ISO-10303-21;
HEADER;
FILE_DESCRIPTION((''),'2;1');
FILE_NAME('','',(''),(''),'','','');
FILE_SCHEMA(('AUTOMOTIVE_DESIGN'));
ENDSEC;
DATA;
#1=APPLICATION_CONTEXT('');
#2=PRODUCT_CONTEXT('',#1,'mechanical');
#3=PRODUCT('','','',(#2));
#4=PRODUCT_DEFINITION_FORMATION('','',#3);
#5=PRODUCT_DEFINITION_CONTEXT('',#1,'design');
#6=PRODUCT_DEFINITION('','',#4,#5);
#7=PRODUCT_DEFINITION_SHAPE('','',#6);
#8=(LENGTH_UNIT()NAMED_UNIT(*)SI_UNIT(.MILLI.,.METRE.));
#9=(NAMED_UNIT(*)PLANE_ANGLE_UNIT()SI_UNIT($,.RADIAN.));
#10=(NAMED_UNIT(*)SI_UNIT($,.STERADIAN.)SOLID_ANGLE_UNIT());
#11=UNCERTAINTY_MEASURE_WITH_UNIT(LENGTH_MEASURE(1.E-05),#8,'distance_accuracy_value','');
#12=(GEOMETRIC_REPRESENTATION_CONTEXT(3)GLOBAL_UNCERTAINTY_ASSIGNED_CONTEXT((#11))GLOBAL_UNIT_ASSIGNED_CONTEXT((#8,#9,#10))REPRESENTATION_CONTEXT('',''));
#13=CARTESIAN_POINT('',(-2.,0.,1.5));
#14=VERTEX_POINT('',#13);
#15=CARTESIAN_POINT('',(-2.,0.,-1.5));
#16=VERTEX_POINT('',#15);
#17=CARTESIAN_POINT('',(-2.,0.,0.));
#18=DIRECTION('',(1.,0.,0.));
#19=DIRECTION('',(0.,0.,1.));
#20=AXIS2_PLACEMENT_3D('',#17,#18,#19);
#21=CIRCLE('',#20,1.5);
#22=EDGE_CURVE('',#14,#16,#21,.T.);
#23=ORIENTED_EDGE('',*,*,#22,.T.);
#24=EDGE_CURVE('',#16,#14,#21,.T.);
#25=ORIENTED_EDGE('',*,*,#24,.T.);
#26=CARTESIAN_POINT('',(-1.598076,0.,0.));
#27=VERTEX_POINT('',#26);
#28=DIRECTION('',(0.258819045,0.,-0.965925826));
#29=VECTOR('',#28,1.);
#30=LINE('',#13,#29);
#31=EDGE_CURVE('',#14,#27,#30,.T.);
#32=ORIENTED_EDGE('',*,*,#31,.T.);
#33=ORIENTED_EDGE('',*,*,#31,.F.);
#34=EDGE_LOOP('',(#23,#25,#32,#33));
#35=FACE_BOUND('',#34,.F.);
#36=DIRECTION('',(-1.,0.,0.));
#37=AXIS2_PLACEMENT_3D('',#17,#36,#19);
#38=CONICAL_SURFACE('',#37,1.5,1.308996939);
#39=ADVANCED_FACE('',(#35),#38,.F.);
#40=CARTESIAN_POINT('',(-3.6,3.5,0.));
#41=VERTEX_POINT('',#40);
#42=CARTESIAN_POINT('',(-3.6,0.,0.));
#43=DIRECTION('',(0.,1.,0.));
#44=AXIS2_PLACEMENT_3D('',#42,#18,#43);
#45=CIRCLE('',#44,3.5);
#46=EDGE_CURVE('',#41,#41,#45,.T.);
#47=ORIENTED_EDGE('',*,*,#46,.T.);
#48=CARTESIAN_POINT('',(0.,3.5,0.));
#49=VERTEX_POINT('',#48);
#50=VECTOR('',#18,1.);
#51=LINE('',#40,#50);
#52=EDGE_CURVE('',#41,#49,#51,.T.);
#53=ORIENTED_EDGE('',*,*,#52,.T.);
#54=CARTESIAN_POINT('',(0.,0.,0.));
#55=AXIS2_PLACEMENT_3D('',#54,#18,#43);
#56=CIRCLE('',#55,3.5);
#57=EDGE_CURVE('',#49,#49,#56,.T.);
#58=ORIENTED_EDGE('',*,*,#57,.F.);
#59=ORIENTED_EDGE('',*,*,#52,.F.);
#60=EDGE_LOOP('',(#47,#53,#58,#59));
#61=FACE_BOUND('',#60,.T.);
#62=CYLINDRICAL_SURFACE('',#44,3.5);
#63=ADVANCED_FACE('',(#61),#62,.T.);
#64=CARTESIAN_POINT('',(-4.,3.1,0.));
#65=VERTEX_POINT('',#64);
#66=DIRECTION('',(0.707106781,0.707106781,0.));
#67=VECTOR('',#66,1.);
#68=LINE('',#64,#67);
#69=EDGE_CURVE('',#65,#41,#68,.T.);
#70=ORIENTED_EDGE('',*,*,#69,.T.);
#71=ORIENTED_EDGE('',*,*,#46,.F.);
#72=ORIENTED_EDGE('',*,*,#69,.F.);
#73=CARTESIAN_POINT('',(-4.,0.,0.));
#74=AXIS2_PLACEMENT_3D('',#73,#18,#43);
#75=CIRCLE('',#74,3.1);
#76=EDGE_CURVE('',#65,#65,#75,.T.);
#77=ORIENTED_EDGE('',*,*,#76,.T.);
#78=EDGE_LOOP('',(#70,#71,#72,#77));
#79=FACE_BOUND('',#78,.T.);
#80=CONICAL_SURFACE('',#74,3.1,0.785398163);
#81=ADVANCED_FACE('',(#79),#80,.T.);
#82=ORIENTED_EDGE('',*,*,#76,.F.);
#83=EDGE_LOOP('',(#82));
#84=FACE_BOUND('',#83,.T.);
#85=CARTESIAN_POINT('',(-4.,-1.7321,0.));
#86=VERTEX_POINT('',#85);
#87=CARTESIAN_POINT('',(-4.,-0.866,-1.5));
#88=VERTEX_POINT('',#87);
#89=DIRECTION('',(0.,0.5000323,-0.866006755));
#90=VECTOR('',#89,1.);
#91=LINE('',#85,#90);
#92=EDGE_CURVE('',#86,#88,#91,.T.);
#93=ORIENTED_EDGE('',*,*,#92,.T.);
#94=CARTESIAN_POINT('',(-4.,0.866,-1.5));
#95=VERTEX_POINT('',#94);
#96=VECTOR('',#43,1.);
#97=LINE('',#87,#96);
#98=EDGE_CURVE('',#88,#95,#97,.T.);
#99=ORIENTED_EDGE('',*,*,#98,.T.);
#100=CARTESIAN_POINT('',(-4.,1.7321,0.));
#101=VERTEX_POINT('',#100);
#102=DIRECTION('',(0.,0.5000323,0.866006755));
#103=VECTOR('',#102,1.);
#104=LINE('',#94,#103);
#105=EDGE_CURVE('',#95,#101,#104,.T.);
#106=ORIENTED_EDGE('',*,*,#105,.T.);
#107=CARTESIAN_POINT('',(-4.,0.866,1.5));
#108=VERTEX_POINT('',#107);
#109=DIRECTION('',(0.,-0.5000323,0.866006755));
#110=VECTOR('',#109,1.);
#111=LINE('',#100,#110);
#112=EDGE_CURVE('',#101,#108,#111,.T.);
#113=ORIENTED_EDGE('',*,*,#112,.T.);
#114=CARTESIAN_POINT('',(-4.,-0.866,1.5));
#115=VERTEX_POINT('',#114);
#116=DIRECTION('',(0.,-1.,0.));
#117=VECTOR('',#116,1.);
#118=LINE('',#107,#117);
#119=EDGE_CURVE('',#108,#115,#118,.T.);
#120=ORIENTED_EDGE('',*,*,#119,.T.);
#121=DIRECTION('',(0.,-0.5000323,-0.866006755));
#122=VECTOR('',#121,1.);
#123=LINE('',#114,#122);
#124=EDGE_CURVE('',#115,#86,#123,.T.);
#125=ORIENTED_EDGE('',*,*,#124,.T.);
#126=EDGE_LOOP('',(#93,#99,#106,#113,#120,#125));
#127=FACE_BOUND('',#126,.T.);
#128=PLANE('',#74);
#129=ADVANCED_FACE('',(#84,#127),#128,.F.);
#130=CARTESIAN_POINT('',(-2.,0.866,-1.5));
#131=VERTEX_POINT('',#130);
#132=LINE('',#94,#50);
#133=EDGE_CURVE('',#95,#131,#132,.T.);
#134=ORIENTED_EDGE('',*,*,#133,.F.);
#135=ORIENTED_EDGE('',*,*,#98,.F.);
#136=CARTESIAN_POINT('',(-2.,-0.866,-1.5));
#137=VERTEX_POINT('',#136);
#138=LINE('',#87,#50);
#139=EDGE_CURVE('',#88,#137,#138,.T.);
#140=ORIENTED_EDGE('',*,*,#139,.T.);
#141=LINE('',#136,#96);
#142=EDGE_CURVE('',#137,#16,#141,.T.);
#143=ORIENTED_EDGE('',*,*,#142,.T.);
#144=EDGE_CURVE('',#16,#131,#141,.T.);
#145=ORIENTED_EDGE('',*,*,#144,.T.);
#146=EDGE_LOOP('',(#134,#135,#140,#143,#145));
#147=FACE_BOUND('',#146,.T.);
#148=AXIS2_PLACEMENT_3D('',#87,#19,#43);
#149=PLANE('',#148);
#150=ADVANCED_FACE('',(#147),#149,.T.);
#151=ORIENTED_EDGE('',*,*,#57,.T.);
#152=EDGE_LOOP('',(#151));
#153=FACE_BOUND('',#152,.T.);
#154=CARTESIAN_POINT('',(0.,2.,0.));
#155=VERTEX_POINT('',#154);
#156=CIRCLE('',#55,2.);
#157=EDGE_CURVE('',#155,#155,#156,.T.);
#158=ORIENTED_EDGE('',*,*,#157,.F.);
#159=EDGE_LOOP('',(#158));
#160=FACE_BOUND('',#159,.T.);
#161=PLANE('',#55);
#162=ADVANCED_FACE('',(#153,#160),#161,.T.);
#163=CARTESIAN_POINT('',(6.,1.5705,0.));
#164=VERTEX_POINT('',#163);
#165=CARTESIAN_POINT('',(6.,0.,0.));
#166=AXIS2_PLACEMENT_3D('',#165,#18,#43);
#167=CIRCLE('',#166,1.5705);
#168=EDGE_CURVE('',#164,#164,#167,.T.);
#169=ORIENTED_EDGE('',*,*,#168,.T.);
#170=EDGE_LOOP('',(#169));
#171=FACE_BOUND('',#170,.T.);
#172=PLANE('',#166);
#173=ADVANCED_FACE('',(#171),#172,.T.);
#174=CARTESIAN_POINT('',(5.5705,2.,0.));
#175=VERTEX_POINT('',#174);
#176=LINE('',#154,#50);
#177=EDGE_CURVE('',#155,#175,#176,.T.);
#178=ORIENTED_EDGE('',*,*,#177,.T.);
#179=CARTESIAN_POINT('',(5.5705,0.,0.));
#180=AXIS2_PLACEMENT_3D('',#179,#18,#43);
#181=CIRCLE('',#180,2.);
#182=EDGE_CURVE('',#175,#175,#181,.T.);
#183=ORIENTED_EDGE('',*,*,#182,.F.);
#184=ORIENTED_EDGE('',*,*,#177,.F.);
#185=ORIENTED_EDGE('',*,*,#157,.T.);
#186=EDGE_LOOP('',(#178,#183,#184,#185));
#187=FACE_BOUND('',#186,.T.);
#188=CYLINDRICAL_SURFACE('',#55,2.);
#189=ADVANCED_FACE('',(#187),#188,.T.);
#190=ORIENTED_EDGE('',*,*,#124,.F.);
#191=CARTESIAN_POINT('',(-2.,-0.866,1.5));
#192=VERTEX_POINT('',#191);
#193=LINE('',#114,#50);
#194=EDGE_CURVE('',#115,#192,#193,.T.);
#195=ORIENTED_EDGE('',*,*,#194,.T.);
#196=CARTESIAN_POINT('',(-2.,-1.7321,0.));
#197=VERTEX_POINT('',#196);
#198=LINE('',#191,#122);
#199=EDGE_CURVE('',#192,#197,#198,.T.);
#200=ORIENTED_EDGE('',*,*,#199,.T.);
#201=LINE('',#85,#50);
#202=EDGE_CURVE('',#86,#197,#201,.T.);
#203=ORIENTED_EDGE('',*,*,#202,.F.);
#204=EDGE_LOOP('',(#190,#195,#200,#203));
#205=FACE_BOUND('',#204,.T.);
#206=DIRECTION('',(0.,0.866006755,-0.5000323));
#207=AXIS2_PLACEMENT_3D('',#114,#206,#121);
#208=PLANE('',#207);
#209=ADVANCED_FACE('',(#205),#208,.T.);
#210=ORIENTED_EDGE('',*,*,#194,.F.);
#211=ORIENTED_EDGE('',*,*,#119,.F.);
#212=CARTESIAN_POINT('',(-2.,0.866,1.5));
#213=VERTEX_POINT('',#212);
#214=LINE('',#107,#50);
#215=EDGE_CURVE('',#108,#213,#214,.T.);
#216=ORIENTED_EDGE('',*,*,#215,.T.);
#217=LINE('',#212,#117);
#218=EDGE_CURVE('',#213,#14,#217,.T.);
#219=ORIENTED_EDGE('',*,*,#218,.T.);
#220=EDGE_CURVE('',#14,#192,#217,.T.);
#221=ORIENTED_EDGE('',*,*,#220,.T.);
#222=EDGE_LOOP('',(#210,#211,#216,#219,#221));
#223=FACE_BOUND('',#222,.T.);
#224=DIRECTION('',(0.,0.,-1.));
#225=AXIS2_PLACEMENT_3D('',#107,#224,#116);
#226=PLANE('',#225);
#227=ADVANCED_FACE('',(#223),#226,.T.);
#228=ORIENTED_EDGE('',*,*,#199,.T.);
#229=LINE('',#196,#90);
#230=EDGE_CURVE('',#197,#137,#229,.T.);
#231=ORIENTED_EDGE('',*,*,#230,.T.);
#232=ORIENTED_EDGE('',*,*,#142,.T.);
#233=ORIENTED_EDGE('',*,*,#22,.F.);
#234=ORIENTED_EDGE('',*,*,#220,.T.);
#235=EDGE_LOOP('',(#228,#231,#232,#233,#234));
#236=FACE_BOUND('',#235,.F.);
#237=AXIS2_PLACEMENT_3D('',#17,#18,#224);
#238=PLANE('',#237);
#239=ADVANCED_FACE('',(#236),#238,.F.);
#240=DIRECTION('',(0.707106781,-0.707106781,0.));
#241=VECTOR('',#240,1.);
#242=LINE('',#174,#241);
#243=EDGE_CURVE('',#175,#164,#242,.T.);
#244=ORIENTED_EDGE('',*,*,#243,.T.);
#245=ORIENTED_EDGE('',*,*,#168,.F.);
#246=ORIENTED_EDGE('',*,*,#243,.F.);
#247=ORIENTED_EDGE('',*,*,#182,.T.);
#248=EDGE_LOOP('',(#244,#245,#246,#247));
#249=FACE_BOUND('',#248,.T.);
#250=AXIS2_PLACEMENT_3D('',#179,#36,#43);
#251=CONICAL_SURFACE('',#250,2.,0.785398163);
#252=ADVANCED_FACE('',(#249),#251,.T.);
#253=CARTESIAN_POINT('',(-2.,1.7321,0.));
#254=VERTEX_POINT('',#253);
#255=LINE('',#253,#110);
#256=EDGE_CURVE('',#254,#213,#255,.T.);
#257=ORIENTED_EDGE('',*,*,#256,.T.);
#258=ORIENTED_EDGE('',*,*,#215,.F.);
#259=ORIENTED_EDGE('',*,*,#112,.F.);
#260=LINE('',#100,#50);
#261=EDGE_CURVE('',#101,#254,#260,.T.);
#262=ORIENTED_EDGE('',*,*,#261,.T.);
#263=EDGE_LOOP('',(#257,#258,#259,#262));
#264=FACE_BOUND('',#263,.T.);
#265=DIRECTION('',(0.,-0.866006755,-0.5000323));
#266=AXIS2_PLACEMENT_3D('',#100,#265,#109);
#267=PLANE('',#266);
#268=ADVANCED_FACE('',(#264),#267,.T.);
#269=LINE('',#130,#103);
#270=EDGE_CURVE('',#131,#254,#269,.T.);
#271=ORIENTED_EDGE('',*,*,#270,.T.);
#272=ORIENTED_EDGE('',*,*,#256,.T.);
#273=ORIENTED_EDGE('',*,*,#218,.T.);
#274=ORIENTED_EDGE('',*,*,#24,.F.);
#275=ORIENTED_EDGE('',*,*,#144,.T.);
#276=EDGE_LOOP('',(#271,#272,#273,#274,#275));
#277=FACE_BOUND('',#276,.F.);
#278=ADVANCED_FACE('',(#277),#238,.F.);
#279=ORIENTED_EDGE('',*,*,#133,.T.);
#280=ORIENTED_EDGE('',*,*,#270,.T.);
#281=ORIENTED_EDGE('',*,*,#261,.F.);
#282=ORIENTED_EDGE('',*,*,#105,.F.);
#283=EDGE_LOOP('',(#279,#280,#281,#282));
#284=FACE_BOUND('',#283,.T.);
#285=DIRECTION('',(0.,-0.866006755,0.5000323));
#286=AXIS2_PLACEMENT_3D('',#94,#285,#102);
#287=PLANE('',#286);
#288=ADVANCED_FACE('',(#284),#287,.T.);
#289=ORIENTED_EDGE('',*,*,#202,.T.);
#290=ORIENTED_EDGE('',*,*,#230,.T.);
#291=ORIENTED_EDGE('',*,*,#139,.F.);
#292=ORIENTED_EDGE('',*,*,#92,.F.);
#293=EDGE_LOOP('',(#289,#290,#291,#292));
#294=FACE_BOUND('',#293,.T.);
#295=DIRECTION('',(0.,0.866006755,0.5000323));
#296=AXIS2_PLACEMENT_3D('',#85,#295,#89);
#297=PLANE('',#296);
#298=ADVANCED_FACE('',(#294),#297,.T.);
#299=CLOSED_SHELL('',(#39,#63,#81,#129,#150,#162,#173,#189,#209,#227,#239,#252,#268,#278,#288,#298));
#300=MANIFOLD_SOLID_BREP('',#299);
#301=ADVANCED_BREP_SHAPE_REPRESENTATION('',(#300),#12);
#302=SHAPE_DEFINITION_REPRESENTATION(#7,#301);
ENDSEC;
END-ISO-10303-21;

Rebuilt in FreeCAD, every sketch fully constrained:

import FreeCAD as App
import Part
import Sketcher

V = App.Vector
Q = App.Units.Quantity


def add_polygon(sketch, points):
    """Adds a closed chain of lines whose ends are joined by coincident constraints."""
    first, n = sketch.GeometryCount, len(points)
    for a, b in zip(points, points[1:] + points[:1]):
        sketch.addGeometry(Part.LineSegment(App.Vector(*a, 0), App.Vector(*b, 0)), False)
    for i in range(n):
        sketch.addConstraint(Sketcher.Constraint("Coincident", first + i, 2, first + (i + 1) % n, 1))

doc = App.newDocument("Part")
body = doc.addObject("PartDesign::Body", "Body")

sketch1 = body.newObject("Sketcher::SketchObject", "Sketch")
sketch1.AttachmentSupport = (doc.getObject("XY_Plane"), [""])
sketch1.MapMode = "FlatFace"
add_polygon(sketch1, [(-4, 0), (6, 0), (6, 1.6), (5.6, 2), (0, 2), (0, 3.5), (-3.6, 3.5), (-4, 3.1)])
sketch1.addConstraint([
    Sketcher.Constraint("Horizontal", 0),
    Sketcher.Constraint("Vertical", 1),
    Sketcher.Constraint("Horizontal", 3),
    Sketcher.Constraint("Vertical", 4),
    Sketcher.Constraint("Horizontal", 5),
    Sketcher.Constraint("Vertical", 7),
    Sketcher.Constraint("PointOnObject", 0, 2, -1),
    Sketcher.Constraint("PointOnObject", 3, 2, -2),
    Sketcher.Constraint("Perpendicular", 2, 6),
    Sketcher.Constraint("DistanceX", 0, 1, 0, 2, Q("10 mm")),
    Sketcher.Constraint("Angle", 2, Q("135 deg")),
    Sketcher.Constraint("DistanceX", 5, 2, 5, 1, Q("3.6 mm")),
    Sketcher.Constraint("DistanceY", 4, 1, 4, 2, Q("1.5 mm")),
    Sketcher.Constraint("DistanceY", 7, 2, 7, 1, Q("3.1 mm")),
    Sketcher.Constraint("DistanceX", -1, 1, 0, 2, Q("6 mm")),
    Sketcher.Constraint("DistanceX", 3, 2, 3, 1, Q("5.5705 mm")),
])
revolution = body.newObject("PartDesign::Revolution", "Revolution")
revolution.Profile = sketch1
revolution.ReferenceAxis = (sketch1, ["H_Axis"])
revolution.Angle = 360

sketch2 = body.newObject("Sketcher::SketchObject", "Sketch001")
sketch2.AttachmentSupport = (doc.getObject("YZ_Plane"), [""])
sketch2.MapMode = "FlatFace"
sketch2.AttachmentOffset = App.Placement(V(0, 0, -4), App.Rotation())
sketch2.addGeometry(Part.Circle(V(0, 0, 0), V(0, 0, 1), 1.5), False)
sketch2.addConstraint([
    Sketcher.Constraint("Coincident", 0, 3, -1, 1),
    Sketcher.Constraint("Diameter", 0, Q("3 mm")),
])
doc.recompute()
hole = body.newObject("PartDesign::Hole", "Hole")
hole.Profile = sketch2
hole.ThreadType = "None"
hole.Diameter = 3
hole.DepthType = "Dimension"
hole.Depth = 2
hole.DrillPoint = "Angled"
hole.DrillPointAngle = 150
hole.Reversed = True

sketch3 = body.newObject("Sketcher::SketchObject", "Sketch002")
sketch3.AttachmentSupport = (doc.getObject("YZ_Plane"), [""])
sketch3.MapMode = "FlatFace"
sketch3.AttachmentOffset = App.Placement(V(0, 0, -4), App.Rotation())
add_polygon(sketch3, [(0.9, 1.5), (-0.9, 1.5), (-1.7, 0), (-0.9, -1.5), (0.9, -1.5), (1.7, 0)])
sketch3.addConstraint([
    Sketcher.Constraint("Horizontal", 0),
    Sketcher.Constraint("Horizontal", 3),
    Sketcher.Constraint("Symmetric", 0, 2, 3, 2, -1, 1),
    Sketcher.Constraint("Symmetric", 1, 2, 4, 2, -1, 1),
    Sketcher.Constraint("PointOnObject", 1, 2, -1),
    Sketcher.Constraint("Parallel", 2, 5),
    Sketcher.Constraint("Vertical", 0, 2, 2, 2),
    Sketcher.Constraint("DistanceY", 2, 2, 0, 2, Q("3 mm")),
    Sketcher.Constraint("DistanceX", 0, 2, 0, 1, Q("1.732 mm")),
    Sketcher.Constraint("Distance", 1, Q("1.732 mm")),
])
pocket1 = body.newObject("PartDesign::Pocket", "Pocket")
pocket1.Profile = sketch3
pocket1.Length = 2
pocket1.Reversed = True

doc.recompute()
